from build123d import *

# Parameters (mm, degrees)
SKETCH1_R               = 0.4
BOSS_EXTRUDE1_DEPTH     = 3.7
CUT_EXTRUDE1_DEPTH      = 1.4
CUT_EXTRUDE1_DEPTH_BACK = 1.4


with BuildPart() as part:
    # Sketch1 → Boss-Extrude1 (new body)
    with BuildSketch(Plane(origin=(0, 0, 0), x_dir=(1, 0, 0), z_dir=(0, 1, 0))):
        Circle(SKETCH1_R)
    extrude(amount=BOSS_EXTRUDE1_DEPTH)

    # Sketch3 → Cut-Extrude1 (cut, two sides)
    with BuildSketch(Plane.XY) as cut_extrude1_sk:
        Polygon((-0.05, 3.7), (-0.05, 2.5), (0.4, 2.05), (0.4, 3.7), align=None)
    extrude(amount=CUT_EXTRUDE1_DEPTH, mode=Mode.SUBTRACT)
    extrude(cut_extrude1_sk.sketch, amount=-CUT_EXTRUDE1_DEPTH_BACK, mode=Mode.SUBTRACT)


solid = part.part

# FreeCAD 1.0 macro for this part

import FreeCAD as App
import Part
import Sketcher

V = App.Vector
Q = App.Units.Quantity


def add_polygon(sketch, points):
    """Adds a closed chain of lines whose ends are joined by coincident constraints."""
    first, n = sketch.GeometryCount, len(points)
    for a, b in zip(points, points[1:] + points[:1]):
        sketch.addGeometry(Part.LineSegment(App.Vector(*a, 0), App.Vector(*b, 0)), False)
    for i in range(n):
        sketch.addConstraint(Sketcher.Constraint("Coincident", first + i, 2, first + (i + 1) % n, 1))

doc = App.newDocument("Part")
params = doc.addObject("Spreadsheet::Sheet", "Params")
for row, (alias, value) in enumerate([
    ("sketch1_diameter", "0.8 mm"),
    ("pad1_length", "3.7 mm"),
    ("sketch2_height", "1.2 mm"),
    ("sketch2_width", "0.45 mm"),
], start=1):
    params.set(f"A{row}", alias)
    params.set(f"B{row}", "=" + value)
    params.setAlias(f"B{row}", alias)

body = doc.addObject("PartDesign::Body", "Body")

# Sketch on XZ plane
sketch1 = body.newObject("Sketcher::SketchObject", "Sketch")
sketch1.AttachmentSupport = (doc.getObject("XZ_Plane"), [""])
sketch1.MapMode = "FlatFace"
sketch1.addGeometry(Part.Circle(V(0, 0, 0), V(0, 0, 1), 0.4), False)
sketch1.addConstraint(Sketcher.Constraint("Coincident", 0, 3, -1, 1))
sketch1.addConstraint(Sketcher.Constraint("Diameter", 0, 0.8))
sketch1.setExpression("Constraints[1]", "Params.sketch1_diameter")
pad1 = body.newObject("PartDesign::Pad", "Pad")
pad1.Profile = sketch1
pad1.setExpression("Length", "Params.pad1_length")
pad1.Reversed = True

# Sketch on XY plane
sketch2 = body.newObject("Sketcher::SketchObject", "Sketch001")
sketch2.AttachmentSupport = (doc.getObject("XY_Plane"), [""])
sketch2.MapMode = "FlatFace"
add_polygon(sketch2, [(-0.05, 3.7), (-0.05, 2.5), (0.4, 2.05), (0.4, 3.7)])  # lines 0-3
sketch2.addConstraint(Sketcher.Constraint("Vertical", 0))
sketch2.addConstraint(Sketcher.Constraint("Vertical", 2))
sketch2.addConstraint(Sketcher.Constraint("Horizontal", 3))
sketch2.addConstraint(Sketcher.Constraint("Angle", 1, Q("-45 deg")))
sketch2.addConstraint(Sketcher.Constraint("DistanceY", 0, 2, 0, 1, 1.2))
sketch2.addConstraint(Sketcher.Constraint("DistanceX", 3, 2, 3, 1, 0.45))
sketch2.addConstraint(Sketcher.Constraint("DistanceY", -1, 1, 0, 2, 2.5))
sketch2.addConstraint(Sketcher.Constraint("DistanceX", -1, 1, 1, 2, 0.4))
sketch2.setExpression("Constraints[8]", "Params.sketch2_height")
sketch2.setExpression("Constraints[9]", "Params.sketch2_width")
pocket1 = body.newObject("PartDesign::Pocket", "Pocket")
pocket1.Profile = sketch2
pocket1.Type = "ThroughAll"
pocket1.Midplane = True

doc.recompute()
